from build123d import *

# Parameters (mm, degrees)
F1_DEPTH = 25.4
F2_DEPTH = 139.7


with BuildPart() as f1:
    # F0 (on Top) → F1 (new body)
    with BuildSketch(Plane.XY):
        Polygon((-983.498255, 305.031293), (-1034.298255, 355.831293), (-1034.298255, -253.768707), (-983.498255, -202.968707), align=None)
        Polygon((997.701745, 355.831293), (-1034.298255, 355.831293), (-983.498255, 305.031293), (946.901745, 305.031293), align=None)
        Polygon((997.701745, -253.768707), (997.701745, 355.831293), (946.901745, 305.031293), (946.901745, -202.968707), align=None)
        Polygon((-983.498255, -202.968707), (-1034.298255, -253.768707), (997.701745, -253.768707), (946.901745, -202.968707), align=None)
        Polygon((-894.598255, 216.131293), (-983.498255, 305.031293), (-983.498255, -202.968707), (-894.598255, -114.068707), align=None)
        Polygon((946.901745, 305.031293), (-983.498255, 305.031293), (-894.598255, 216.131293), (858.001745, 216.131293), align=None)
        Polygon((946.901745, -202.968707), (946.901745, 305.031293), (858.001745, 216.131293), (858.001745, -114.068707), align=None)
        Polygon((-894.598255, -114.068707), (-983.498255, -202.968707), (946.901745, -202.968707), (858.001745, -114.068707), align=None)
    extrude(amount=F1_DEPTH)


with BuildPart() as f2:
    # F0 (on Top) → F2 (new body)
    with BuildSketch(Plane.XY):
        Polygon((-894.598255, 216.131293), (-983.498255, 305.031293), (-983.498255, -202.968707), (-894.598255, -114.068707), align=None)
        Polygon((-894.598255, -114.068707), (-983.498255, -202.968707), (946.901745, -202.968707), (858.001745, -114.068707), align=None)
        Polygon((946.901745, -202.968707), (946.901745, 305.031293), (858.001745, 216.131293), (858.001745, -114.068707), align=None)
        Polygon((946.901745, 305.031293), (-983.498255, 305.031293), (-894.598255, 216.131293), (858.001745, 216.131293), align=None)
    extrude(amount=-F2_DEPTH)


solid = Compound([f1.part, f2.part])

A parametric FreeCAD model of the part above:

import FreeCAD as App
import Part
import Sketcher

V = App.Vector
Q = App.Units.Quantity


def add_polygon(sketch, points):
    """Adds a closed chain of lines whose ends are joined by coincident constraints."""
    first, n = sketch.GeometryCount, len(points)
    for a, b in zip(points, points[1:] + points[:1]):
        sketch.addGeometry(Part.LineSegment(App.Vector(*a, 0), App.Vector(*b, 0)), False)
    for i in range(n):
        sketch.addConstraint(Sketcher.Constraint("Coincident", first + i, 2, first + (i + 1) % n, 1))

doc = App.newDocument("Part")
params = doc.addObject("Spreadsheet::Sheet", "Params")
for row, (alias, value) in enumerate([
    ("sketch1_width", "80 in"),
    ("sketch1_width2", "69 in"),
    ("sketch1_height", "24 in"),
    ("sketch1_height2", "13 in"),
    ("pad1_length", "1 in"),
    ("sketch2_width", "76 in"),
    ("sketch2_width2", "69 in"),
    ("sketch2_height", "20 in"),
    ("sketch2_height2", "13 in"),
    ("pad2_length", "5.5 in"),
], start=1):
    params.set(f"A{row}", alias)
    params.set(f"B{row}", "=" + value)
    params.setAlias(f"B{row}", alias)

body = doc.addObject("PartDesign::Body", "Body")

sketch1 = doc.addObject("Sketcher::SketchObject", "Sketch")
body.addObject(sketch1)
sketch1.AttachmentSupport = (doc.XY_Plane, [""])
sketch1.MapMode = "FlatFace"
add_polygon(sketch1, [(-1034.298255, 355.831293), (-1034.298255, -253.768707), (997.701745, -253.768707), (997.701745, 355.831293)])
add_polygon(sketch1, [(-894.598255, -114.068707), (-894.598255, 216.131293), (858.001745, 216.131293), (858.001745, -114.068707)])
sketch1.addConstraint([
    Sketcher.Constraint("Vertical", 0),
    Sketcher.Constraint("Horizontal", 1),
    Sketcher.Constraint("Vertical", 2),
    Sketcher.Constraint("Horizontal", 3),
    Sketcher.Constraint("Vertical", 4),
    Sketcher.Constraint("Horizontal", 5),
    Sketcher.Constraint("Vertical", 6),
    Sketcher.Constraint("Horizontal", 7),
    Sketcher.Constraint("DistanceX", 1, 1, 1, 2, Q("80 in")),
    Sketcher.Constraint("DistanceX", 5, 1, 5, 2, Q("69 in")),
    Sketcher.Constraint("DistanceY", 0, 2, 0, 1, Q("24 in")),
    Sketcher.Constraint("DistanceY", 4, 1, 4, 2, Q("13 in")),
    Sketcher.Constraint("DistanceX", 3, 2, 4, 2, Q("5.5 in")),
    Sketcher.Constraint("DistanceY", 4, 2, 3, 2, Q("5.5 in")),
    Sketcher.Constraint("DistanceX", 0, 2, -1, 1, Q("1034.298255 mm")),
    Sketcher.Constraint("DistanceY", 0, 2, -1, 1, Q("253.768707 mm")),
])
sketch1.setExpression("Constraints[16]", "Params.sketch1_width")
sketch1.setExpression("Constraints[17]", "Params.sketch1_width2")
sketch1.setExpression("Constraints[18]", "Params.sketch1_height")
sketch1.setExpression("Constraints[19]", "Params.sketch1_height2")
pad1 = doc.addObject("PartDesign::Pad", "Pad")
body.addObject(pad1)
pad1.Profile = sketch1
pad1.setExpression("Length", "Params.pad1_length")
body2 = doc.addObject("PartDesign::Body", "Body001")

sketch2 = doc.addObject("Sketcher::SketchObject", "Sketch001")
body2.addObject(sketch2)
sketch2.AttachmentSupport = (doc.getObject("XY_Plane001"), [""])
sketch2.MapMode = "FlatFace"
add_polygon(sketch2, [(-983.498255, 305.031293), (-983.498255, -202.968707), (946.901745, -202.968707), (946.901745, 305.031293)])
add_polygon(sketch2, [(858.001745, 216.131293), (858.001745, -114.068707), (-894.598255, -114.068707), (-894.598255, 216.131293)])
sketch2.addConstraint([
    Sketcher.Constraint("Vertical", 0),
    Sketcher.Constraint("Horizontal", 1),
    Sketcher.Constraint("Vertical", 2),
    Sketcher.Constraint("Horizontal", 3),
    Sketcher.Constraint("Vertical", 4),
    Sketcher.Constraint("Horizontal", 5),
    Sketcher.Constraint("Vertical", 6),
    Sketcher.Constraint("Horizontal", 7),
    Sketcher.Constraint("DistanceX", 1, 1, 1, 2, Q("76 in")),
    Sketcher.Constraint("DistanceX", 5, 2, 5, 1, Q("69 in")),
    Sketcher.Constraint("DistanceY", 0, 2, 0, 1, Q("20 in")),
    Sketcher.Constraint("DistanceY", 4, 2, 4, 1, Q("13 in")),
    Sketcher.Constraint("DistanceX", 4, 2, 1, 2, Q("3.5 in")),
    Sketcher.Constraint("DistanceY", 1, 2, 4, 2, Q("3.5 in")),
    Sketcher.Constraint("DistanceX", 0, 2, -1, 1, Q("983.498255 mm")),
    Sketcher.Constraint("DistanceY", 0, 2, -1, 1, Q("202.968707 mm")),
])
sketch2.setExpression("Constraints[16]", "Params.sketch2_width")
sketch2.setExpression("Constraints[17]", "Params.sketch2_width2")
sketch2.setExpression("Constraints[18]", "Params.sketch2_height")
sketch2.setExpression("Constraints[19]", "Params.sketch2_height2")
pad2 = doc.addObject("PartDesign::Pad", "Pad001")
body2.addObject(pad2)
pad2.Profile = sketch2
pad2.setExpression("Length", "Params.pad2_length")
pad2.Reversed = True

doc.recompute()
